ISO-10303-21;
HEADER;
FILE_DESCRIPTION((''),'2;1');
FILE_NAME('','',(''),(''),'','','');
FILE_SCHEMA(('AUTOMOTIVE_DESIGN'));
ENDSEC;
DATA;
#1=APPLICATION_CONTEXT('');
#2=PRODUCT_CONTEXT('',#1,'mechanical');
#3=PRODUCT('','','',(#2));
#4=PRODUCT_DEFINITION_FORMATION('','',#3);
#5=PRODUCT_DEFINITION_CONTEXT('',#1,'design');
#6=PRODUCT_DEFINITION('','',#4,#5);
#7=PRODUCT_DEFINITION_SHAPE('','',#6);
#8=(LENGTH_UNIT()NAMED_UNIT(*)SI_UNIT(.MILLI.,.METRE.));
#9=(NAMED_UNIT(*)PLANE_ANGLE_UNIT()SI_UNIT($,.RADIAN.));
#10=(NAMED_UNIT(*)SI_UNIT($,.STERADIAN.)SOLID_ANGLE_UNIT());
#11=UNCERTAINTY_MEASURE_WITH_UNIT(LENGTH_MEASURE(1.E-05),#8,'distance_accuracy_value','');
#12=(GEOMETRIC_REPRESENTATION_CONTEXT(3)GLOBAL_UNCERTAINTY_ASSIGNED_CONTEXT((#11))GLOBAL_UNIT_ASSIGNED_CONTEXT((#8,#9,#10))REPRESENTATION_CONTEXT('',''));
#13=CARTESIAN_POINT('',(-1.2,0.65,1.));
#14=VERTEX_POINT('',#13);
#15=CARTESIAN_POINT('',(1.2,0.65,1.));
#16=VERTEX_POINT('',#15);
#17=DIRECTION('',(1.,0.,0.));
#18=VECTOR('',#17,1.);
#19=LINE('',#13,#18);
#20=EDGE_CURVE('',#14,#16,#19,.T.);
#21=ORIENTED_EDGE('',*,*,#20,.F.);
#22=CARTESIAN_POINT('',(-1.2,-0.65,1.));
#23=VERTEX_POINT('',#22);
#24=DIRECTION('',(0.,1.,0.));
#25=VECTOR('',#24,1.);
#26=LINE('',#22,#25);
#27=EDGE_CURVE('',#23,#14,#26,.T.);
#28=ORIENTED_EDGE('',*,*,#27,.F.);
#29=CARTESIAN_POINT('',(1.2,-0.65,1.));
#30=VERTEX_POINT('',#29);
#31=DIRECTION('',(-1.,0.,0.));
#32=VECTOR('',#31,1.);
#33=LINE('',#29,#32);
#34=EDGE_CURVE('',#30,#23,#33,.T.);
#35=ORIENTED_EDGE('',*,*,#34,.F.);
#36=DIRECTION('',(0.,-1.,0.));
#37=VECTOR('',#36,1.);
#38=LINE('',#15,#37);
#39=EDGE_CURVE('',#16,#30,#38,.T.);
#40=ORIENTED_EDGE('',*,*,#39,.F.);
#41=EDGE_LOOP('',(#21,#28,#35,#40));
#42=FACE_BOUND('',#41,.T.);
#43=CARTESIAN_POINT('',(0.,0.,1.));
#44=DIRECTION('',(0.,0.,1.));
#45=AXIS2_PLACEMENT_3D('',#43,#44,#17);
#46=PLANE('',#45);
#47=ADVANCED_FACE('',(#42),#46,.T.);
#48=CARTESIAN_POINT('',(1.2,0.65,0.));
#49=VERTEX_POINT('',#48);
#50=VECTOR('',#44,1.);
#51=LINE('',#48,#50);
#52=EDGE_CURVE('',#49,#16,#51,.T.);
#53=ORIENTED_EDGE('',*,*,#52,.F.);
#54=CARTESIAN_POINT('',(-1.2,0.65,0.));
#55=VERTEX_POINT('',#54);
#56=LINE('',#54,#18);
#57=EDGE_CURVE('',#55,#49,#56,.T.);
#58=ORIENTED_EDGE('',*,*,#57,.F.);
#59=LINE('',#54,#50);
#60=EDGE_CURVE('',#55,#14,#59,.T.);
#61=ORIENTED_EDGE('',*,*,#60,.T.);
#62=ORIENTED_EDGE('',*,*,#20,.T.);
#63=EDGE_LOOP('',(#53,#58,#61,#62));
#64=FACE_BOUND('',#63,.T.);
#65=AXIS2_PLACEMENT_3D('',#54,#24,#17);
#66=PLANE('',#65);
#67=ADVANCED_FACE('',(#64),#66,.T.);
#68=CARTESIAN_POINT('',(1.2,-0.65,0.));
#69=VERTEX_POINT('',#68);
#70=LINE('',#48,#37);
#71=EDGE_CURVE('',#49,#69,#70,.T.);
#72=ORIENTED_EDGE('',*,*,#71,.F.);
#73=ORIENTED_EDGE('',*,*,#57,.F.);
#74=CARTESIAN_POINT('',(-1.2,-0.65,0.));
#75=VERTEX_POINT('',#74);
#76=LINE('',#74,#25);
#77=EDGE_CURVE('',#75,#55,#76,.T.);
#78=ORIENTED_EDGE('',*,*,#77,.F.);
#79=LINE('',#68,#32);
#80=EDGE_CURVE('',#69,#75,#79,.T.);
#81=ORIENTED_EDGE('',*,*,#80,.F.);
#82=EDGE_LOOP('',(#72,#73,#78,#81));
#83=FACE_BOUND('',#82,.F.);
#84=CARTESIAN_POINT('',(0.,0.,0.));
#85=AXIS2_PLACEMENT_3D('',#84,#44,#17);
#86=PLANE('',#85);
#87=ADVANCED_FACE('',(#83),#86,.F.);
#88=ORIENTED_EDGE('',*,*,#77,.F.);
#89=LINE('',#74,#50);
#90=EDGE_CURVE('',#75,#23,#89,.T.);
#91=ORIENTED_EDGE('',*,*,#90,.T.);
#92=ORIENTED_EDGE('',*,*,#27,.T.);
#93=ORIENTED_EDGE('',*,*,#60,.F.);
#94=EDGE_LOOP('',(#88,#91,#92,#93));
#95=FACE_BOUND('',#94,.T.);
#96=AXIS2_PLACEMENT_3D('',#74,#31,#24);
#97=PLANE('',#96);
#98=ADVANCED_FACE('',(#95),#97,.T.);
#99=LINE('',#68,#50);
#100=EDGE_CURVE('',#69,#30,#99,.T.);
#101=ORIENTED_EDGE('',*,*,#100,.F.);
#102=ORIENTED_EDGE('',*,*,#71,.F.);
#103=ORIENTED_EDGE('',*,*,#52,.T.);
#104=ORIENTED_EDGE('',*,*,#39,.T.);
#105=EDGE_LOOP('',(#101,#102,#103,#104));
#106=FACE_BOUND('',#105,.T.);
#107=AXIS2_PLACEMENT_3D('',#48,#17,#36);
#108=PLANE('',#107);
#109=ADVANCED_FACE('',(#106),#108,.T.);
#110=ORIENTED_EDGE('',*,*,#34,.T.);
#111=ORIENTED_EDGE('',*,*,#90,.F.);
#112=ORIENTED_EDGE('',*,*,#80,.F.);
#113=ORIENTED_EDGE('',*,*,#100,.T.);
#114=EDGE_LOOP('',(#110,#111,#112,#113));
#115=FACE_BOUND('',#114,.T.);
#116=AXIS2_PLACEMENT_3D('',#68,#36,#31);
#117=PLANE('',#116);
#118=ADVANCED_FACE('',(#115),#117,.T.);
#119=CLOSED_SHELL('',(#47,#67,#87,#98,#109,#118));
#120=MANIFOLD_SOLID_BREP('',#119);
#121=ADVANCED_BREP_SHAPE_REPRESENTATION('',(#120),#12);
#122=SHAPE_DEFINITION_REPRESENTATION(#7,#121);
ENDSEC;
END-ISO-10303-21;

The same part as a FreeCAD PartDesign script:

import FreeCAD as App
import Part
import Sketcher
from FreeCAD import Vector


def add_polygon(sketch, points):
    """Adds a closed chain of lines whose ends are joined by coincident constraints."""
    first, n = sketch.GeometryCount, len(points)
    for a, b in zip(points, points[1:] + points[:1]):
        sketch.addGeometry(Part.LineSegment(App.Vector(*a, 0), App.Vector(*b, 0)), False)
    for i in range(n):
        sketch.addConstraint(Sketcher.Constraint("Coincident", first + i, 2, first + (i + 1) % n, 1))

doc = App.newDocument("Part")
body = doc.addObject("PartDesign::Body", "Body")

# Sketch on XY plane
sketch1 = body.newObject("Sketcher::SketchObject", "Sketch")
sketch1.AttachmentSupport = (doc.getObject("XY_Plane"), [""])
sketch1.MapMode = "FlatFace"
add_polygon(sketch1, [(1.2, 0.65), (-1.2, 0.65), (-1.2, -0.65), (1.2, -0.65)])  # lines 0-3
sketch1.addConstraint([
    Sketcher.Constraint("Horizontal", 0),
    Sketcher.Constraint("Vertical", 1),
    Sketcher.Constraint("Horizontal", 2),
    Sketcher.Constraint("Vertical", 3),
    Sketcher.Constraint("Symmetric", 0, 2, 2, 2, -1, 1),
    Sketcher.Constraint("DistanceX", 0, 2, 0, 1, 2.4),
    Sketcher.Constraint("DistanceY", 1, 2, 1, 1, 1.3),
])
pad1 = body.newObject("PartDesign::Pad", "Pad")
pad1.Profile = sketch1
pad1.Length = 1

doc.recompute()
